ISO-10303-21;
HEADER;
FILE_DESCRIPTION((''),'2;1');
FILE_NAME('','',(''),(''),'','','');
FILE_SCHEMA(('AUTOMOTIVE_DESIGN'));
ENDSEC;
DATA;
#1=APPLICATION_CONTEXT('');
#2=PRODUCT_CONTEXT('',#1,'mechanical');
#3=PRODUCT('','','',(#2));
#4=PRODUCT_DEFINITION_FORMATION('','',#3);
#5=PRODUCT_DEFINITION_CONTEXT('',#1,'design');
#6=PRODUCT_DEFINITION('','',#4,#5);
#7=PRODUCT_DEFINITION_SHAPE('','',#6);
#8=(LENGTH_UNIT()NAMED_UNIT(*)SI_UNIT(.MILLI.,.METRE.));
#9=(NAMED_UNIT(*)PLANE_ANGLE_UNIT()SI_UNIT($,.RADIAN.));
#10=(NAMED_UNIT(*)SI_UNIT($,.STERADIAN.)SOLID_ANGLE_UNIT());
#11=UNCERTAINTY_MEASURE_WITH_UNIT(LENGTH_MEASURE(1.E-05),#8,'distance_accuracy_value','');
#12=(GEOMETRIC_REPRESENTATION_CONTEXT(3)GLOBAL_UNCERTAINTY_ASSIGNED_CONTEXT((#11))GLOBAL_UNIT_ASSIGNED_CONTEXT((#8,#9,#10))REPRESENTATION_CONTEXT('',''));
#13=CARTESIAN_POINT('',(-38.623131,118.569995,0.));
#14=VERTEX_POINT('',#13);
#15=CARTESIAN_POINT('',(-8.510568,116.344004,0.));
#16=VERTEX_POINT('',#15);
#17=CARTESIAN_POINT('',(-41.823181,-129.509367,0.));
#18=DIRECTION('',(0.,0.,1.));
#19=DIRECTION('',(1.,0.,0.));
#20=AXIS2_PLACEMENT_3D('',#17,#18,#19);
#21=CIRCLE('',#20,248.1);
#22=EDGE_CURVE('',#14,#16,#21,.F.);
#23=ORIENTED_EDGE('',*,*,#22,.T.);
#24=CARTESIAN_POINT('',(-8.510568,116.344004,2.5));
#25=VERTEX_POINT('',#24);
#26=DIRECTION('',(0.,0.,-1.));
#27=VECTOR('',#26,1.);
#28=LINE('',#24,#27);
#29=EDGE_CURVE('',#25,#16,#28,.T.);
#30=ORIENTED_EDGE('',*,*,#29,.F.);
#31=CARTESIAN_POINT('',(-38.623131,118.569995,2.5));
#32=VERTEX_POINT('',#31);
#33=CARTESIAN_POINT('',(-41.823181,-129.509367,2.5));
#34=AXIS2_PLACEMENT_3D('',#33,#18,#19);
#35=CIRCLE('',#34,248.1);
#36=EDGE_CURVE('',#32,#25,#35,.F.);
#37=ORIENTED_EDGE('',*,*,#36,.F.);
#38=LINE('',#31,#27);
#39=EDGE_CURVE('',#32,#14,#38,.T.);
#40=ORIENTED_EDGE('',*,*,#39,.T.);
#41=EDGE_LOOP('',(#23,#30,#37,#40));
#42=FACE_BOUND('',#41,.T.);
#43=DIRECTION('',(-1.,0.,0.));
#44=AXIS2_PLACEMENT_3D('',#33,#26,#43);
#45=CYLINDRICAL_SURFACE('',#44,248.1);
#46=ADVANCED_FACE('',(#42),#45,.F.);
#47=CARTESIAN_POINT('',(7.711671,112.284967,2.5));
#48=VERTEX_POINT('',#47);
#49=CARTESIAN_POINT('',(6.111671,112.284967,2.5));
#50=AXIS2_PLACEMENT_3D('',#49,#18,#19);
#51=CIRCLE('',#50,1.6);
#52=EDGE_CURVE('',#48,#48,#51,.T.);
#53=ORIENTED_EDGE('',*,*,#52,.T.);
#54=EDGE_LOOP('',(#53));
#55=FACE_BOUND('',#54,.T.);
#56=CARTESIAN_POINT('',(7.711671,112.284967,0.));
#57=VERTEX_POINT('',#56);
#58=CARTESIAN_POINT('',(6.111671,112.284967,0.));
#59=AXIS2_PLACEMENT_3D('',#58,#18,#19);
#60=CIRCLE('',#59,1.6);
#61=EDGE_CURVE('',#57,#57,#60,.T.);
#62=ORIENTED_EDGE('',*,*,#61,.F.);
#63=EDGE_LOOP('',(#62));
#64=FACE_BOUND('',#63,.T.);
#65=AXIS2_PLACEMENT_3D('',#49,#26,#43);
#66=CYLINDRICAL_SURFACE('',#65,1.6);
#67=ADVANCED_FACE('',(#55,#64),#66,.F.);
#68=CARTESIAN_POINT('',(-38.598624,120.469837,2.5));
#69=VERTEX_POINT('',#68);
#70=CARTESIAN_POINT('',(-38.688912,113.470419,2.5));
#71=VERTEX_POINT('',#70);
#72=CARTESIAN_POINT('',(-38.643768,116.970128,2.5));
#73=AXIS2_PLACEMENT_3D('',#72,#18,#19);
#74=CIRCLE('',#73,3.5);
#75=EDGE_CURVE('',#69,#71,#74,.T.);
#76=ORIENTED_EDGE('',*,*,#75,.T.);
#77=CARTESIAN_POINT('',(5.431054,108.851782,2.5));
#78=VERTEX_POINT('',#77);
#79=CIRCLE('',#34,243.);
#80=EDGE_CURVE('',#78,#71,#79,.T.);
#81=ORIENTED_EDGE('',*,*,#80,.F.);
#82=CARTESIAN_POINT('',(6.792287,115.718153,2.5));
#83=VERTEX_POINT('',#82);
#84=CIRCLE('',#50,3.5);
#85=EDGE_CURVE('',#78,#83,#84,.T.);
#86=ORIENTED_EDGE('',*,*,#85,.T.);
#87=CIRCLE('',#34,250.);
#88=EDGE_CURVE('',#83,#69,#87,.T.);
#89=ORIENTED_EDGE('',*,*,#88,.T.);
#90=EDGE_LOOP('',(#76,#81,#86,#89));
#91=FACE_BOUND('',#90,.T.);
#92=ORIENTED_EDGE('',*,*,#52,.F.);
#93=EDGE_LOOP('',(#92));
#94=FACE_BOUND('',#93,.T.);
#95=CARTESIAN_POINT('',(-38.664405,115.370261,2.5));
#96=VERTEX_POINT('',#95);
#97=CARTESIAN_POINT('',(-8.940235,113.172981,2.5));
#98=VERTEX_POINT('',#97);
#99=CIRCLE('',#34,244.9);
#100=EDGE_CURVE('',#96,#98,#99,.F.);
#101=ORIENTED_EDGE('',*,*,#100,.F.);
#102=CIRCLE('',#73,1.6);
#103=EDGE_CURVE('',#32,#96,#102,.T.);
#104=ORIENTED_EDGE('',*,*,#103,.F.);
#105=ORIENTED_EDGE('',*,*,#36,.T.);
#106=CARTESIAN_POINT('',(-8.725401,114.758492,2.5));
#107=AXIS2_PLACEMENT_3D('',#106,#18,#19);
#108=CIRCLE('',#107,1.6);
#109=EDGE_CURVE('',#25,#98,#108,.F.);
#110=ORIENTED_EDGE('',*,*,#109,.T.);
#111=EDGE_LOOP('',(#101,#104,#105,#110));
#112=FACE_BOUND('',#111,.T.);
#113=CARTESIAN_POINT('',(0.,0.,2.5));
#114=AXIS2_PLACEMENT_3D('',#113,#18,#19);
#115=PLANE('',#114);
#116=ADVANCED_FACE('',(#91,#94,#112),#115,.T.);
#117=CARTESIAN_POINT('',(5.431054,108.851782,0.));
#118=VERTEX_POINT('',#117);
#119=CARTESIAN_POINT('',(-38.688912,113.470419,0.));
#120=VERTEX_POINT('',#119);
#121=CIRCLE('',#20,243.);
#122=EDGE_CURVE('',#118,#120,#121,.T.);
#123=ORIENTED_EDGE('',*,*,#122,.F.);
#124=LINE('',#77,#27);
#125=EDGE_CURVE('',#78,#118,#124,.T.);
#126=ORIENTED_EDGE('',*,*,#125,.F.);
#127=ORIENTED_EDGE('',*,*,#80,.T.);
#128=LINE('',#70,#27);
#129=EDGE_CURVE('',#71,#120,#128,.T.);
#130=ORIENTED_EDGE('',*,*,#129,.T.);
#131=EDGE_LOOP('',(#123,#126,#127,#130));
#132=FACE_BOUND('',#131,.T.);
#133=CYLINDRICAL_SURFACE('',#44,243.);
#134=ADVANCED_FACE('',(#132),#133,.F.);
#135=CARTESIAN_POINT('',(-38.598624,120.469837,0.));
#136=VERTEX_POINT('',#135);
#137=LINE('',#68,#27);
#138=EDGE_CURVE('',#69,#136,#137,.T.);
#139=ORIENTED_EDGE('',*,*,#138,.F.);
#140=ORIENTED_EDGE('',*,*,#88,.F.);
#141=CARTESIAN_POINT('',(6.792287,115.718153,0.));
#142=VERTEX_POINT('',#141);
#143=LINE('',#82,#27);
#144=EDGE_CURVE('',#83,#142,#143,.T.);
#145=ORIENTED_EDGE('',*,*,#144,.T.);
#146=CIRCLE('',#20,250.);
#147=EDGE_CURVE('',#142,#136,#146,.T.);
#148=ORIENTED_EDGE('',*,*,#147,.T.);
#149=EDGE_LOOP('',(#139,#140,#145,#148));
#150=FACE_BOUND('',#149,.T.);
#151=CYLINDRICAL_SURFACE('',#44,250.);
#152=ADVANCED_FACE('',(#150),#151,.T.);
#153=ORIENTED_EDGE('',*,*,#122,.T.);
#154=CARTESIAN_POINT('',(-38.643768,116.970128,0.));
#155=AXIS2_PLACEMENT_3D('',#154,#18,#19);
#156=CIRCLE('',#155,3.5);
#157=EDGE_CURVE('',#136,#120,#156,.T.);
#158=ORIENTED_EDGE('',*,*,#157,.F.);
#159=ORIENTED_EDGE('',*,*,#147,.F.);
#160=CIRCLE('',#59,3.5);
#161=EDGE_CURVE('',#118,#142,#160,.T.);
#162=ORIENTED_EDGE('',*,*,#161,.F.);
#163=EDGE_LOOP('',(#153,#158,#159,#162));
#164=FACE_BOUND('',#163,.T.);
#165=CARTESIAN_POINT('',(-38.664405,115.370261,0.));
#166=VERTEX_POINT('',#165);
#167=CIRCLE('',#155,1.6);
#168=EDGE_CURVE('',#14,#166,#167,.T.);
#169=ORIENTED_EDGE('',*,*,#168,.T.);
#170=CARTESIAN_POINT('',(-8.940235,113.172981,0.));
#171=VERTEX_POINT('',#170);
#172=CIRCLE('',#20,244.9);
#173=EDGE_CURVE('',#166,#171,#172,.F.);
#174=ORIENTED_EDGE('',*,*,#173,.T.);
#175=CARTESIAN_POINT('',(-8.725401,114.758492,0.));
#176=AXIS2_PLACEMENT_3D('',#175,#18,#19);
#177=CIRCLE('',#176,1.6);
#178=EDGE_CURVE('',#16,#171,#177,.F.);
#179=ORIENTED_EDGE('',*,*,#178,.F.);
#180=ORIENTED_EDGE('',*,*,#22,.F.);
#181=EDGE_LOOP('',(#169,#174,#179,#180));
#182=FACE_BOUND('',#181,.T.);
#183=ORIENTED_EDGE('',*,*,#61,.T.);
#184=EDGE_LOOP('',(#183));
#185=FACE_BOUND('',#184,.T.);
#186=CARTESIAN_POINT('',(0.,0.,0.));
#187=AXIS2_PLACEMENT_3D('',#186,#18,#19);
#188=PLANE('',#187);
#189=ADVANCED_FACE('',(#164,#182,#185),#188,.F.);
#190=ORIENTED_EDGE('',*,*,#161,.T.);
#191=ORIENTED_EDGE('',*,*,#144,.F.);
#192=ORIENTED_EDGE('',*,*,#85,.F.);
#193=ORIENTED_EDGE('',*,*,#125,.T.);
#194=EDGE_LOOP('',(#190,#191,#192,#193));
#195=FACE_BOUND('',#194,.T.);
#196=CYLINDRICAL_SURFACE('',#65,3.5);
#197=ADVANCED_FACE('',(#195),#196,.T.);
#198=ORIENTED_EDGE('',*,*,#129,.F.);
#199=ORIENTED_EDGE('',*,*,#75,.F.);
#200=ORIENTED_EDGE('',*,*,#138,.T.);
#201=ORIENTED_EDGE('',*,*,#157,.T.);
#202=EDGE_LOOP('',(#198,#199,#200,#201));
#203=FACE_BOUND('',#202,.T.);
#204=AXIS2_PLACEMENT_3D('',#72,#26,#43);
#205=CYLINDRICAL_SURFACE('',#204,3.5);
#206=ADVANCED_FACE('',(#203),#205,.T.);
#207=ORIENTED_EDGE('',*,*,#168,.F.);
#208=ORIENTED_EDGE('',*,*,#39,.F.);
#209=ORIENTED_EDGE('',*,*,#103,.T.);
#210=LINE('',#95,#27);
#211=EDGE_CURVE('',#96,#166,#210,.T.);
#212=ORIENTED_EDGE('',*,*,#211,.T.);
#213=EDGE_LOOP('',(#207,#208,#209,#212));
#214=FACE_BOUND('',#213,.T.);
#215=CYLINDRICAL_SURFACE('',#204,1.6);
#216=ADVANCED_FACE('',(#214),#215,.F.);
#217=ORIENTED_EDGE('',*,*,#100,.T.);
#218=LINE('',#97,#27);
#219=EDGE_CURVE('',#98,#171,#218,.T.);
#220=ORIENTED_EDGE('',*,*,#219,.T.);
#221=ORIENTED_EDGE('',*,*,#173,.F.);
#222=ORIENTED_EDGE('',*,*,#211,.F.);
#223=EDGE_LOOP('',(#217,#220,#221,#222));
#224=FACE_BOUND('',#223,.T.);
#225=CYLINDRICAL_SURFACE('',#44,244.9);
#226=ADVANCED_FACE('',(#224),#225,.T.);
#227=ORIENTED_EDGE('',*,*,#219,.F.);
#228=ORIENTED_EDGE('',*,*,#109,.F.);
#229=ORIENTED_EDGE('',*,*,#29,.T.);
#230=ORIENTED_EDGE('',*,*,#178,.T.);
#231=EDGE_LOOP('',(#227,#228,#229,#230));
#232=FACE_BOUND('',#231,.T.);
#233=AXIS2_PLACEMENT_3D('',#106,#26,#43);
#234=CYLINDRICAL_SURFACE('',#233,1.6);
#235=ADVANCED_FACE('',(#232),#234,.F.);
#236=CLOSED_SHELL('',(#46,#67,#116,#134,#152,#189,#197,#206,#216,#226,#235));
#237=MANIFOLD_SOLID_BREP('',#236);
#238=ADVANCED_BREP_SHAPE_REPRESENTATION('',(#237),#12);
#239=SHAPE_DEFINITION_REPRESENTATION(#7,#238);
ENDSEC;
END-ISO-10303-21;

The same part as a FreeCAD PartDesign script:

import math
import FreeCAD as App
import Part
import Sketcher
from FreeCAD import Vector

doc = App.newDocument("Part")
body = doc.addObject("PartDesign::Body", "Body")

sketch1 = body.newObject("Sketcher::SketchObject", "Sketch")
sketch1.AttachmentSupport = (doc.getObject("XY_Plane"), [""])
sketch1.MapMode = "FlatFace"
sketch1.addGeometry(Part.ArcOfCircle(Part.Circle(Vector(6.1, 112.3, 0), Vector(0, 0, 1), 3.5), math.radians(0), math.radians(79)), False)
sketch1.addGeometry(Part.ArcOfCircle(Part.Circle(Vector(-41.8, -129.5, 0), Vector(0, 0, 1), 250), math.radians(78.79), math.radians(89.26)), False)
sketch1.addGeometry(Part.ArcOfCircle(Part.Circle(Vector(-38.6, 117, 0), Vector(0, 0, 1), 3.5), math.radians(89), math.radians(269)), False)
sketch1.addGeometry(Part.ArcOfCircle(Part.Circle(Vector(-41.8, -129.5, 0), Vector(0, 0, 1), 243), math.radians(78.79), math.radians(89.26)), False)
sketch1.addGeometry(Part.ArcOfCircle(Part.Circle(Vector(6.1, 112.3, 0), Vector(0, 0, 1), 3.5), math.radians(-101), math.radians(0)), False)
sketch1.addGeometry(Part.ArcOfCircle(Part.Circle(Vector(6.1, 112.3, 0), Vector(0, 0, 1), 1.6), math.radians(0), math.radians(79)), False)
sketch1.addGeometry(Part.ArcOfCircle(Part.Circle(Vector(6.1, 112.3, 0), Vector(0, 0, 1), 1.6), math.radians(-101), math.radians(0)), False)
sketch1.addGeometry(Part.ArcOfCircle(Part.Circle(Vector(6.1, 112.3, 0), Vector(0, 0, 1), 1.6), math.radians(79), math.radians(259)), False)
sketch1.addGeometry(Part.ArcOfCircle(Part.Circle(Vector(-41.8, -129.5, 0), Vector(0, 0, 1), 244.9), math.radians(82.28), math.radians(89.26)), False)
sketch1.addGeometry(Part.ArcOfCircle(Part.Circle(Vector(-38.6, 117, 0), Vector(0, 0, 1), 1.6), math.radians(89), math.radians(269)), False)
sketch1.addGeometry(Part.ArcOfCircle(Part.Circle(Vector(-41.8, -129.5, 0), Vector(0, 0, 1), 248.1), math.radians(82.28), math.radians(89.26)), False)
sketch1.addGeometry(Part.ArcOfCircle(Part.Circle(Vector(-8.7, 114.8, 0), Vector(0, 0, 1), 1.6), math.radians(-98), math.radians(82)), False)
sketch1.addConstraint(Sketcher.Constraint("Tangent", 0, 2, 1, 1))
sketch1.addConstraint(Sketcher.Constraint("Tangent", 1, 2, 2, 1))
sketch1.addConstraint(Sketcher.Constraint("Tangent", 2, 2, 3, 2))
sketch1.addConstraint(Sketcher.Constraint("Tangent", 3, 1, 4, 1))
sketch1.addConstraint(Sketcher.Constraint("Tangent", 4, 2, 0, 1))
sketch1.addConstraint(Sketcher.Constraint("Tangent", 5, 1, 6, 2))
sketch1.addConstraint(Sketcher.Constraint("Tangent", 6, 1, 7, 2))
sketch1.addConstraint(Sketcher.Constraint("Tangent", 7, 1, 5, 2))
sketch1.addConstraint(Sketcher.Constraint("Tangent", 8, 2, 9, 2))
sketch1.addConstraint(Sketcher.Constraint("Tangent", 9, 1, 10, 2))
sketch1.addConstraint(Sketcher.Constraint("Tangent", 10, 1, 11, 2))
sketch1.addConstraint(Sketcher.Constraint("Tangent", 11, 1, 8, 1))
sketch1.addConstraint(Sketcher.Constraint("Coincident", 3, 3, 1, 3))
sketch1.addConstraint(Sketcher.Constraint("Coincident", 5, 3, 0, 3))
sketch1.addConstraint(Sketcher.Constraint("Coincident", 8, 3, 1, 3))
sketch1.addConstraint(Sketcher.Constraint("Coincident", 9, 3, 2, 3))
sketch1.addConstraint(Sketcher.Constraint("Coincident", 10, 3, 1, 3))
sketch1.addConstraint(Sketcher.Constraint("Equal", 0, 2))
sketch1.addConstraint(Sketcher.Constraint("Equal", 7, 9))
sketch1.addConstraint(Sketcher.Constraint("Horizontal", 7, 3, 4, 2))
sketch1.addConstraint(Sketcher.Constraint("Horizontal", 4, 2, 5, 1))
sketch1.addConstraint(Sketcher.Constraint("Radius", 1, 250.0))
sketch1.addConstraint(Sketcher.Constraint("Radius", 3, 243.0))
sketch1.addConstraint(Sketcher.Constraint("Radius", 5, 1.6))
sketch1.addConstraint(Sketcher.Constraint("DistanceX", 11, 3, -1, 1, 8.725401))
sketch1.addConstraint(Sketcher.Constraint("DistanceX", -1, 1, 0, 3, 6.111671))
sketch1.addConstraint(Sketcher.Constraint("DistanceX", 1, 3, -1, 1, 41.823181))
sketch1.addConstraint(Sketcher.Constraint("DistanceX", 2, 2, -1, 1, 38.688912))
sketch1.addConstraint(Sketcher.Constraint("DistanceY", -1, 1, 2, 2, 113.470419))
sketch1.addConstraint(Sketcher.Constraint("DistanceX", -1, 1, 6, 1, 5.800532))
sketch1.addConstraint(Sketcher.Constraint("DistanceX", -1, 1, 7, 1, 6.42281))
pad1 = body.newObject("PartDesign::Pad", "Pad")
pad1.Profile = sketch1
pad1.Length = 2.5

doc.recompute()
